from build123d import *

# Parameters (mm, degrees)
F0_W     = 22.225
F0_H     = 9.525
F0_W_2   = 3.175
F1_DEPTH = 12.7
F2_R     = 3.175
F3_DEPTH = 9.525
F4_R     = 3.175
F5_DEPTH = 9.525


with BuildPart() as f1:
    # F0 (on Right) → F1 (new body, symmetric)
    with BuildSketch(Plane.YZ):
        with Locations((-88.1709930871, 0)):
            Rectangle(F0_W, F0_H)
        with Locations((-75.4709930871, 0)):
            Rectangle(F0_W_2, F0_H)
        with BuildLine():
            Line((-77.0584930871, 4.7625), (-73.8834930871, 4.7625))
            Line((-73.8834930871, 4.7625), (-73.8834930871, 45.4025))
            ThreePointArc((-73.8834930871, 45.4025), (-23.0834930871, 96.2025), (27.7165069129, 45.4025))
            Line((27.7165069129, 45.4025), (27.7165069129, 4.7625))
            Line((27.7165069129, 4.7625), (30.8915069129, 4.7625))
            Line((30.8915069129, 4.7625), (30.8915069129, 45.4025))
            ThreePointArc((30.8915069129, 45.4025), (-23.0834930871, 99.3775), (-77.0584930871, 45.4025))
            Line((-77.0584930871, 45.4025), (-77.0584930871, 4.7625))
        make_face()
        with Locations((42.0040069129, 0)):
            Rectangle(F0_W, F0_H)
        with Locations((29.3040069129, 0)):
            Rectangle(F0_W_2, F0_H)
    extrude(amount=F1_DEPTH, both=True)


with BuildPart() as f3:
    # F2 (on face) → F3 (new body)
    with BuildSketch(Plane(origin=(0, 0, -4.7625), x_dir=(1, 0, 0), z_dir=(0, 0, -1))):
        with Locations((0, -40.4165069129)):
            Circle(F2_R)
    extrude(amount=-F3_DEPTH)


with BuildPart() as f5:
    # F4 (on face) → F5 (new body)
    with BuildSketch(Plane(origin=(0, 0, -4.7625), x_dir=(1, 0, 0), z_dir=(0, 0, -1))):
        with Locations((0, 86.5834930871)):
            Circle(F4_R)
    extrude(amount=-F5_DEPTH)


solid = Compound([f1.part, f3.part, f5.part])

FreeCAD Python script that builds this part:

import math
import FreeCAD as App
import Part
import Sketcher
from FreeCAD import Vector
Q = App.Units.Quantity

doc = App.newDocument("Part")
params = doc.addObject("Spreadsheet::Sheet", "Params")
for row, (alias, value) in enumerate([
    ("sketch1_radius", "2 in"),
    ("sketch1_width", "1 in"),
    ("sketch1_height", "1.6 in"),
    ("sketch1_radius2", "2.125 in"),
    ("sketch1_height2", "0.375 in"),
    ("pad1_length", "1 in"),
    ("sketch2_diameter", "0.25 in"),
    ("pad2_length", "0.375 in"),
    ("sketch3_diameter", "0.25 in"),
    ("pad3_length", "0.375 in"),
], start=1):
    params.set(f"A{row}", alias)
    params.set(f"B{row}", "=" + value)
    params.setAlias(f"B{row}", alias)

body = doc.addObject("PartDesign::Body", "Body")

sketch1 = body.newObject("Sketcher::SketchObject", "Sketch")
sketch1.AttachmentSupport = (doc.getObject("YZ_Plane"), [""])
sketch1.MapMode = "FlatFace"
sketch1.addGeometry(Part.LineSegment(Vector(-99.283493, 4.7625, 0), Vector(-99.283493, -4.7625, 0)), False)
sketch1.addGeometry(Part.LineSegment(Vector(-99.283493, -4.7625, 0), Vector(-73.883493, -4.7625, 0)), False)
sketch1.addGeometry(Part.LineSegment(Vector(-73.883493, -4.7625, 0), Vector(-73.883493, 45.4025, 0)), False)
sketch1.addGeometry(Part.ArcOfCircle(Part.Circle(Vector(-23.083493, 45.4025, 0), Vector(0, 0, 1), 50.8), math.radians(0), math.radians(180)), False)
sketch1.addGeometry(Part.LineSegment(Vector(27.716507, 45.4025, 0), Vector(27.716507, -4.7625, 0)), False)
sketch1.addGeometry(Part.LineSegment(Vector(27.716507, -4.7625, 0), Vector(53.116507, -4.7625, 0)), False)
sketch1.addGeometry(Part.LineSegment(Vector(53.116507, -4.7625, 0), Vector(53.116507, 4.7625, 0)), False)
sketch1.addGeometry(Part.LineSegment(Vector(53.116507, 4.7625, 0), Vector(30.891507, 4.7625, 0)), False)
sketch1.addGeometry(Part.LineSegment(Vector(30.891507, 4.7625, 0), Vector(30.891507, 45.4025, 0)), False)
sketch1.addGeometry(Part.ArcOfCircle(Part.Circle(Vector(-23.083493, 45.4025, 0), Vector(0, 0, 1), 53.975), math.radians(0), math.radians(180)), False)
sketch1.addGeometry(Part.LineSegment(Vector(-77.058493, 45.4025, 0), Vector(-77.058493, 4.7625, 0)), False)
sketch1.addGeometry(Part.LineSegment(Vector(-77.058493, 4.7625, 0), Vector(-99.283493, 4.7625, 0)), False)
sketch1.addConstraint(Sketcher.Constraint("Coincident", 0, 2, 1, 1))
sketch1.addConstraint(Sketcher.Constraint("Coincident", 1, 2, 2, 1))
sketch1.addConstraint(Sketcher.Constraint("Tangent", 2, 2, 3, 2))
sketch1.addConstraint(Sketcher.Constraint("Tangent", 3, 1, 4, 1))
sketch1.addConstraint(Sketcher.Constraint("Coincident", 4, 2, 5, 1))
sketch1.addConstraint(Sketcher.Constraint("Coincident", 5, 2, 6, 1))
sketch1.addConstraint(Sketcher.Constraint("Coincident", 6, 2, 7, 1))
sketch1.addConstraint(Sketcher.Constraint("Coincident", 7, 2, 8, 1))
sketch1.addConstraint(Sketcher.Constraint("Tangent", 8, 2, 9, 1))
sketch1.addConstraint(Sketcher.Constraint("Tangent", 9, 2, 10, 1))
sketch1.addConstraint(Sketcher.Constraint("Coincident", 10, 2, 11, 1))
sketch1.addConstraint(Sketcher.Constraint("Coincident", 11, 2, 0, 1))
sketch1.addConstraint(Sketcher.Constraint("Vertical", 0))
sketch1.addConstraint(Sketcher.Constraint("Horizontal", 1))
sketch1.addConstraint(Sketcher.Constraint("Vertical", 2))
sketch1.addConstraint(Sketcher.Constraint("Vertical", 4))
sketch1.addConstraint(Sketcher.Constraint("Horizontal", 5))
sketch1.addConstraint(Sketcher.Constraint("Vertical", 6))
sketch1.addConstraint(Sketcher.Constraint("Horizontal", 7))
sketch1.addConstraint(Sketcher.Constraint("Vertical", 8))
sketch1.addConstraint(Sketcher.Constraint("Vertical", 10))
sketch1.addConstraint(Sketcher.Constraint("Horizontal", 11))
sketch1.addConstraint(Sketcher.Constraint("Coincident", 9, 3, 3, 3))
sketch1.addConstraint(Sketcher.Constraint("Horizontal", 1, 2, 4, 2))
sketch1.addConstraint(Sketcher.Constraint("Horizontal", 7, 2, 10, 2))
sketch1.addConstraint(Sketcher.Constraint("Equal", 1, 5))
sketch1.addConstraint(Sketcher.Constraint("Radius", 3, Q("2 in")))
sketch1.addConstraint(Sketcher.Constraint("DistanceX", 1, 1, 1, 2, Q("1 in")))
sketch1.addConstraint(Sketcher.Constraint("DistanceY", 8, 1, 8, 2, Q("1.6 in")))
sketch1.addConstraint(Sketcher.Constraint("Radius", 9, Q("2.125 in")))
sketch1.addConstraint(Sketcher.Constraint("DistanceY", 0, 2, 0, 1, Q("0.375 in")))
sketch1.addConstraint(Sketcher.Constraint("DistanceY", 0, 2, -1, 1, Q("0.1875 in")))
sketch1.addConstraint(Sketcher.Constraint("DistanceX", 3, 3, -1, 1, Q("23.083493 mm")))
sketch1.setExpression("Constraints[26]", "Params.sketch1_radius")
sketch1.setExpression("Constraints[27]", "Params.sketch1_width")
sketch1.setExpression("Constraints[28]", "Params.sketch1_height")
sketch1.setExpression("Constraints[29]", "Params.sketch1_radius2")
sketch1.setExpression("Constraints[30]", "Params.sketch1_height2")
pad1 = body.newObject("PartDesign::Pad", "Pad")
pad1.Profile = sketch1
pad1.setExpression("Length", "Params.pad1_length")
pad1.Midplane = True
body2 = doc.addObject("PartDesign::Body", "Body001")

sketch2 = body2.newObject("Sketcher::SketchObject", "Sketch001")
sketch2.AttachmentSupport = (doc.getObject("XY_Plane001"), [""])
sketch2.MapMode = "FlatFace"
sketch2.AttachmentOffset = App.Placement(Vector(0, 0, -0.1875 * 25.4), App.Rotation())
sketch2.addGeometry(Part.Circle(Vector(0, 40.416507, 0), Vector(0, 0, 1), 3.175), False)
sketch2.addConstraint(Sketcher.Constraint("PointOnObject", 0, 3, -2))
sketch2.addConstraint(Sketcher.Constraint("Diameter", 0, Q("0.25 in")))
sketch2.addConstraint(Sketcher.Constraint("DistanceY", -1, 1, 0, 3, Q("40.416507 mm")))
sketch2.setExpression("Constraints[1]", "Params.sketch2_diameter")
pad2 = body2.newObject("PartDesign::Pad", "Pad001")
pad2.Profile = sketch2
pad2.setExpression("Length", "Params.pad2_length")
body3 = doc.addObject("PartDesign::Body", "Body002")

sketch3 = body3.newObject("Sketcher::SketchObject", "Sketch002")
sketch3.AttachmentSupport = (doc.getObject("XY_Plane002"), [""])
sketch3.MapMode = "FlatFace"
sketch3.AttachmentOffset = App.Placement(Vector(0, 0, -0.1875 * 25.4), App.Rotation())
sketch3.addGeometry(Part.Circle(Vector(0, -86.583493, 0), Vector(0, 0, 1), 3.175), False)
sketch3.addConstraint(Sketcher.Constraint("PointOnObject", 0, 3, -2))
sketch3.addConstraint(Sketcher.Constraint("Diameter", 0, Q("0.25 in")))
sketch3.addConstraint(Sketcher.Constraint("DistanceY", 0, 3, -1, 1, Q("86.583493 mm")))
sketch3.setExpression("Constraints[1]", "Params.sketch3_diameter")
pad3 = body3.newObject("PartDesign::Pad", "Pad002")
pad3.Profile = sketch3
pad3.setExpression("Length", "Params.pad3_length")

doc.recompute()
